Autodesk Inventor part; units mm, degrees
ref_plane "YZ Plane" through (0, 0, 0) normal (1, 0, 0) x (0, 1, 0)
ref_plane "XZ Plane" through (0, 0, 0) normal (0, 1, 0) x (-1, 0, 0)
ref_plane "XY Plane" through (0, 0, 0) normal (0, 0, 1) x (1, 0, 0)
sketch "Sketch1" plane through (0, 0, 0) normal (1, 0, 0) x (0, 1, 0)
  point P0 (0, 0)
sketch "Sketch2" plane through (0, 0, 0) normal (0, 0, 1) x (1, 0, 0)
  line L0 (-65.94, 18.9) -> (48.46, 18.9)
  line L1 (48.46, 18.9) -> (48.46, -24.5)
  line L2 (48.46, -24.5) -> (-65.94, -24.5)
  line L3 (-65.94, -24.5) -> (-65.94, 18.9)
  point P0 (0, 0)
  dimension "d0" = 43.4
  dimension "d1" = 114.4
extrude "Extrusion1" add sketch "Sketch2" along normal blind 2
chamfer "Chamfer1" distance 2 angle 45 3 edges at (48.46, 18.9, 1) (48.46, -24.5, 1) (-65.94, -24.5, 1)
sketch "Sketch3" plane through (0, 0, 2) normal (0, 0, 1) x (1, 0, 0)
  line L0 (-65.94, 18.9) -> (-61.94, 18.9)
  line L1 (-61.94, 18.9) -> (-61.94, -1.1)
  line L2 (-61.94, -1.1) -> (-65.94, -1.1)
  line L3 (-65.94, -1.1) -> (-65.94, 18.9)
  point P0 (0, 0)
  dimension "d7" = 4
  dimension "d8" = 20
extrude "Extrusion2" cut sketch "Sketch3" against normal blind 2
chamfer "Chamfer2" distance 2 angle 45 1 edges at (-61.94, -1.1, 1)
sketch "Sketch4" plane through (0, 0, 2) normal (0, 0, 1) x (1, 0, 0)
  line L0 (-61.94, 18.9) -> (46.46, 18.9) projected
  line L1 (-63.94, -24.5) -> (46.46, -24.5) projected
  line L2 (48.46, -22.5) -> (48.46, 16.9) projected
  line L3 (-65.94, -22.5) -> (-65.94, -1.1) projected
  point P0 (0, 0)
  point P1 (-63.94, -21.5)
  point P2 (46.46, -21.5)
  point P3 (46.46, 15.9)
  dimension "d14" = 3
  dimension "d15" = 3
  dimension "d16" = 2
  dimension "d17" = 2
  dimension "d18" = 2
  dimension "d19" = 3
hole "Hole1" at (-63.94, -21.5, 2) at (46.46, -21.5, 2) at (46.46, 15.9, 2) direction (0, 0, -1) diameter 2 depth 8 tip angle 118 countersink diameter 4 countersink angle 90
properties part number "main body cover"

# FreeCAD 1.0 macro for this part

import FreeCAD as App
import Part
import Sketcher
from FreeCAD import Vector
Q = App.Units.Quantity


def edges_at(feature, points):
    """Names of the edges that pass closest to the given points."""
    edges = feature.Shape.Edges
    near = lambda p: min(range(len(edges)), key=lambda i: edges[i].distToShape(Part.Vertex(*p))[0])
    return sorted({f"Edge{near(p) + 1}" for p in points})


def add_polygon(sketch, points):
    """Adds a closed chain of lines whose ends are joined by coincident constraints."""
    first, n = sketch.GeometryCount, len(points)
    for a, b in zip(points, points[1:] + points[:1]):
        sketch.addGeometry(Part.LineSegment(App.Vector(*a, 0), App.Vector(*b, 0)), False)
    for i in range(n):
        sketch.addConstraint(Sketcher.Constraint("Coincident", first + i, 2, first + (i + 1) % n, 1))

doc = App.newDocument("Part")
body = doc.addObject("PartDesign::Body", "Body")

sketch1 = body.newObject("Sketcher::SketchObject", "Sketch")
sketch1.AttachmentSupport = (doc.getObject("XY_Plane"), [""])
sketch1.MapMode = "FlatFace"
add_polygon(sketch1, [(48, 19), (-66, 19), (-66, -24), (48, -24)])
sketch1.addConstraint([
    Sketcher.Constraint("Horizontal", 0),
    Sketcher.Constraint("Vertical", 1),
    Sketcher.Constraint("Horizontal", 2),
    Sketcher.Constraint("Vertical", 3),
    Sketcher.Constraint("DistanceX", 0, 2, 0, 1, Q("114.4 mm")),
    Sketcher.Constraint("DistanceY", 1, 2, 1, 1, Q("43.4 mm")),
    Sketcher.Constraint("DistanceY", -1, 1, 0, 2, Q("18.9 mm")),
    Sketcher.Constraint("DistanceX", 0, 2, -1, 1, Q("65.94 mm")),
])
pad1 = body.newObject("PartDesign::Pad", "Pad")
pad1.Profile = sketch1
pad1.Length = 2
doc.recompute()

chamfer = body.newObject("PartDesign::Chamfer", "Chamfer")
chamfer.Base = (pad1, edges_at(pad1, [(48.46, 18.9, 1), (48.46, -24.5, 1), (-65.94, -24.5, 1)]))
chamfer.Size = 2

sketch2 = body.newObject("Sketcher::SketchObject", "Sketch001")
sketch2.AttachmentSupport = (doc.getObject("XY_Plane"), [""])
sketch2.MapMode = "FlatFace"
sketch2.AttachmentOffset = App.Placement(Vector(0, 0, 2), App.Rotation())
add_polygon(sketch2, [(-61.9, 18.9), (-65.9, 18.9), (-65.9, -1.1), (-61.9, -1.1)])
sketch2.addConstraint([
    Sketcher.Constraint("Horizontal", 0),
    Sketcher.Constraint("Vertical", 1),
    Sketcher.Constraint("Horizontal", 2),
    Sketcher.Constraint("Vertical", 3),
    Sketcher.Constraint("DistanceX", 0, 2, 0, 1, Q("4 mm")),
    Sketcher.Constraint("DistanceY", 1, 2, 1, 1, Q("20 mm")),
    Sketcher.Constraint("DistanceY", -1, 1, 0, 2, Q("18.9 mm")),
    Sketcher.Constraint("DistanceX", 0, 2, -1, 1, Q("65.94 mm")),
])
pocket1 = body.newObject("PartDesign::Pocket", "Pocket")
pocket1.Profile = sketch2
pocket1.Length = 2
doc.recompute()

chamfer2 = body.newObject("PartDesign::Chamfer", "Chamfer001")
chamfer2.Base = (pocket1, edges_at(pocket1, [(-61.94, -1.1, 1)]))
chamfer2.Size = 2

sketch3 = body.newObject("Sketcher::SketchObject", "Sketch002")
sketch3.AttachmentSupport = (doc.getObject("XY_Plane"), [""])
sketch3.MapMode = "FlatFace"
sketch3.AttachmentOffset = App.Placement(Vector(0, 0, 2), App.Rotation())
sketch3.addGeometry([
    Part.Circle(Vector(-63.9, -21.5, 0), Vector(0, 0, 1), 1),
    Part.Circle(Vector(46.5, -21.5, 0), Vector(0, 0, 1), 1),
    Part.Circle(Vector(46.5, 15.9, 0), Vector(0, 0, 1), 1),
], False)
sketch3.addConstraint([
    Sketcher.Constraint("Equal", 0, 1),
    Sketcher.Constraint("Equal", 1, 2),
    Sketcher.Constraint("Horizontal", 0, 3, 1, 3),
    Sketcher.Constraint("Vertical", 1, 3, 2, 3),
    Sketcher.Constraint("Diameter", 0, Q("2 mm")),
    Sketcher.Constraint("DistanceY", 0, 3, -1, 1, Q("21.5 mm")),
    Sketcher.Constraint("DistanceY", -1, 1, 2, 3, Q("15.9 mm")),
    Sketcher.Constraint("DistanceX", 0, 3, 1, 3, Q("110.4 mm")),
    Sketcher.Constraint("DistanceX", 0, 3, -1, 1, Q("63.94 mm")),
])
doc.recompute()
hole = body.newObject("PartDesign::Hole", "Hole")
hole.Profile = sketch3
hole.ThreadType = "None"
hole.Diameter = 2
hole.DepthType = "Dimension"
hole.Depth = 8
hole.DrillPoint = "Angled"
hole.DrillPointAngle = 118
hole.HoleCutType = "Countersink"
hole.HoleCutDiameter = 4
hole.HoleCutCountersinkAngle = 90

doc.recompute()
